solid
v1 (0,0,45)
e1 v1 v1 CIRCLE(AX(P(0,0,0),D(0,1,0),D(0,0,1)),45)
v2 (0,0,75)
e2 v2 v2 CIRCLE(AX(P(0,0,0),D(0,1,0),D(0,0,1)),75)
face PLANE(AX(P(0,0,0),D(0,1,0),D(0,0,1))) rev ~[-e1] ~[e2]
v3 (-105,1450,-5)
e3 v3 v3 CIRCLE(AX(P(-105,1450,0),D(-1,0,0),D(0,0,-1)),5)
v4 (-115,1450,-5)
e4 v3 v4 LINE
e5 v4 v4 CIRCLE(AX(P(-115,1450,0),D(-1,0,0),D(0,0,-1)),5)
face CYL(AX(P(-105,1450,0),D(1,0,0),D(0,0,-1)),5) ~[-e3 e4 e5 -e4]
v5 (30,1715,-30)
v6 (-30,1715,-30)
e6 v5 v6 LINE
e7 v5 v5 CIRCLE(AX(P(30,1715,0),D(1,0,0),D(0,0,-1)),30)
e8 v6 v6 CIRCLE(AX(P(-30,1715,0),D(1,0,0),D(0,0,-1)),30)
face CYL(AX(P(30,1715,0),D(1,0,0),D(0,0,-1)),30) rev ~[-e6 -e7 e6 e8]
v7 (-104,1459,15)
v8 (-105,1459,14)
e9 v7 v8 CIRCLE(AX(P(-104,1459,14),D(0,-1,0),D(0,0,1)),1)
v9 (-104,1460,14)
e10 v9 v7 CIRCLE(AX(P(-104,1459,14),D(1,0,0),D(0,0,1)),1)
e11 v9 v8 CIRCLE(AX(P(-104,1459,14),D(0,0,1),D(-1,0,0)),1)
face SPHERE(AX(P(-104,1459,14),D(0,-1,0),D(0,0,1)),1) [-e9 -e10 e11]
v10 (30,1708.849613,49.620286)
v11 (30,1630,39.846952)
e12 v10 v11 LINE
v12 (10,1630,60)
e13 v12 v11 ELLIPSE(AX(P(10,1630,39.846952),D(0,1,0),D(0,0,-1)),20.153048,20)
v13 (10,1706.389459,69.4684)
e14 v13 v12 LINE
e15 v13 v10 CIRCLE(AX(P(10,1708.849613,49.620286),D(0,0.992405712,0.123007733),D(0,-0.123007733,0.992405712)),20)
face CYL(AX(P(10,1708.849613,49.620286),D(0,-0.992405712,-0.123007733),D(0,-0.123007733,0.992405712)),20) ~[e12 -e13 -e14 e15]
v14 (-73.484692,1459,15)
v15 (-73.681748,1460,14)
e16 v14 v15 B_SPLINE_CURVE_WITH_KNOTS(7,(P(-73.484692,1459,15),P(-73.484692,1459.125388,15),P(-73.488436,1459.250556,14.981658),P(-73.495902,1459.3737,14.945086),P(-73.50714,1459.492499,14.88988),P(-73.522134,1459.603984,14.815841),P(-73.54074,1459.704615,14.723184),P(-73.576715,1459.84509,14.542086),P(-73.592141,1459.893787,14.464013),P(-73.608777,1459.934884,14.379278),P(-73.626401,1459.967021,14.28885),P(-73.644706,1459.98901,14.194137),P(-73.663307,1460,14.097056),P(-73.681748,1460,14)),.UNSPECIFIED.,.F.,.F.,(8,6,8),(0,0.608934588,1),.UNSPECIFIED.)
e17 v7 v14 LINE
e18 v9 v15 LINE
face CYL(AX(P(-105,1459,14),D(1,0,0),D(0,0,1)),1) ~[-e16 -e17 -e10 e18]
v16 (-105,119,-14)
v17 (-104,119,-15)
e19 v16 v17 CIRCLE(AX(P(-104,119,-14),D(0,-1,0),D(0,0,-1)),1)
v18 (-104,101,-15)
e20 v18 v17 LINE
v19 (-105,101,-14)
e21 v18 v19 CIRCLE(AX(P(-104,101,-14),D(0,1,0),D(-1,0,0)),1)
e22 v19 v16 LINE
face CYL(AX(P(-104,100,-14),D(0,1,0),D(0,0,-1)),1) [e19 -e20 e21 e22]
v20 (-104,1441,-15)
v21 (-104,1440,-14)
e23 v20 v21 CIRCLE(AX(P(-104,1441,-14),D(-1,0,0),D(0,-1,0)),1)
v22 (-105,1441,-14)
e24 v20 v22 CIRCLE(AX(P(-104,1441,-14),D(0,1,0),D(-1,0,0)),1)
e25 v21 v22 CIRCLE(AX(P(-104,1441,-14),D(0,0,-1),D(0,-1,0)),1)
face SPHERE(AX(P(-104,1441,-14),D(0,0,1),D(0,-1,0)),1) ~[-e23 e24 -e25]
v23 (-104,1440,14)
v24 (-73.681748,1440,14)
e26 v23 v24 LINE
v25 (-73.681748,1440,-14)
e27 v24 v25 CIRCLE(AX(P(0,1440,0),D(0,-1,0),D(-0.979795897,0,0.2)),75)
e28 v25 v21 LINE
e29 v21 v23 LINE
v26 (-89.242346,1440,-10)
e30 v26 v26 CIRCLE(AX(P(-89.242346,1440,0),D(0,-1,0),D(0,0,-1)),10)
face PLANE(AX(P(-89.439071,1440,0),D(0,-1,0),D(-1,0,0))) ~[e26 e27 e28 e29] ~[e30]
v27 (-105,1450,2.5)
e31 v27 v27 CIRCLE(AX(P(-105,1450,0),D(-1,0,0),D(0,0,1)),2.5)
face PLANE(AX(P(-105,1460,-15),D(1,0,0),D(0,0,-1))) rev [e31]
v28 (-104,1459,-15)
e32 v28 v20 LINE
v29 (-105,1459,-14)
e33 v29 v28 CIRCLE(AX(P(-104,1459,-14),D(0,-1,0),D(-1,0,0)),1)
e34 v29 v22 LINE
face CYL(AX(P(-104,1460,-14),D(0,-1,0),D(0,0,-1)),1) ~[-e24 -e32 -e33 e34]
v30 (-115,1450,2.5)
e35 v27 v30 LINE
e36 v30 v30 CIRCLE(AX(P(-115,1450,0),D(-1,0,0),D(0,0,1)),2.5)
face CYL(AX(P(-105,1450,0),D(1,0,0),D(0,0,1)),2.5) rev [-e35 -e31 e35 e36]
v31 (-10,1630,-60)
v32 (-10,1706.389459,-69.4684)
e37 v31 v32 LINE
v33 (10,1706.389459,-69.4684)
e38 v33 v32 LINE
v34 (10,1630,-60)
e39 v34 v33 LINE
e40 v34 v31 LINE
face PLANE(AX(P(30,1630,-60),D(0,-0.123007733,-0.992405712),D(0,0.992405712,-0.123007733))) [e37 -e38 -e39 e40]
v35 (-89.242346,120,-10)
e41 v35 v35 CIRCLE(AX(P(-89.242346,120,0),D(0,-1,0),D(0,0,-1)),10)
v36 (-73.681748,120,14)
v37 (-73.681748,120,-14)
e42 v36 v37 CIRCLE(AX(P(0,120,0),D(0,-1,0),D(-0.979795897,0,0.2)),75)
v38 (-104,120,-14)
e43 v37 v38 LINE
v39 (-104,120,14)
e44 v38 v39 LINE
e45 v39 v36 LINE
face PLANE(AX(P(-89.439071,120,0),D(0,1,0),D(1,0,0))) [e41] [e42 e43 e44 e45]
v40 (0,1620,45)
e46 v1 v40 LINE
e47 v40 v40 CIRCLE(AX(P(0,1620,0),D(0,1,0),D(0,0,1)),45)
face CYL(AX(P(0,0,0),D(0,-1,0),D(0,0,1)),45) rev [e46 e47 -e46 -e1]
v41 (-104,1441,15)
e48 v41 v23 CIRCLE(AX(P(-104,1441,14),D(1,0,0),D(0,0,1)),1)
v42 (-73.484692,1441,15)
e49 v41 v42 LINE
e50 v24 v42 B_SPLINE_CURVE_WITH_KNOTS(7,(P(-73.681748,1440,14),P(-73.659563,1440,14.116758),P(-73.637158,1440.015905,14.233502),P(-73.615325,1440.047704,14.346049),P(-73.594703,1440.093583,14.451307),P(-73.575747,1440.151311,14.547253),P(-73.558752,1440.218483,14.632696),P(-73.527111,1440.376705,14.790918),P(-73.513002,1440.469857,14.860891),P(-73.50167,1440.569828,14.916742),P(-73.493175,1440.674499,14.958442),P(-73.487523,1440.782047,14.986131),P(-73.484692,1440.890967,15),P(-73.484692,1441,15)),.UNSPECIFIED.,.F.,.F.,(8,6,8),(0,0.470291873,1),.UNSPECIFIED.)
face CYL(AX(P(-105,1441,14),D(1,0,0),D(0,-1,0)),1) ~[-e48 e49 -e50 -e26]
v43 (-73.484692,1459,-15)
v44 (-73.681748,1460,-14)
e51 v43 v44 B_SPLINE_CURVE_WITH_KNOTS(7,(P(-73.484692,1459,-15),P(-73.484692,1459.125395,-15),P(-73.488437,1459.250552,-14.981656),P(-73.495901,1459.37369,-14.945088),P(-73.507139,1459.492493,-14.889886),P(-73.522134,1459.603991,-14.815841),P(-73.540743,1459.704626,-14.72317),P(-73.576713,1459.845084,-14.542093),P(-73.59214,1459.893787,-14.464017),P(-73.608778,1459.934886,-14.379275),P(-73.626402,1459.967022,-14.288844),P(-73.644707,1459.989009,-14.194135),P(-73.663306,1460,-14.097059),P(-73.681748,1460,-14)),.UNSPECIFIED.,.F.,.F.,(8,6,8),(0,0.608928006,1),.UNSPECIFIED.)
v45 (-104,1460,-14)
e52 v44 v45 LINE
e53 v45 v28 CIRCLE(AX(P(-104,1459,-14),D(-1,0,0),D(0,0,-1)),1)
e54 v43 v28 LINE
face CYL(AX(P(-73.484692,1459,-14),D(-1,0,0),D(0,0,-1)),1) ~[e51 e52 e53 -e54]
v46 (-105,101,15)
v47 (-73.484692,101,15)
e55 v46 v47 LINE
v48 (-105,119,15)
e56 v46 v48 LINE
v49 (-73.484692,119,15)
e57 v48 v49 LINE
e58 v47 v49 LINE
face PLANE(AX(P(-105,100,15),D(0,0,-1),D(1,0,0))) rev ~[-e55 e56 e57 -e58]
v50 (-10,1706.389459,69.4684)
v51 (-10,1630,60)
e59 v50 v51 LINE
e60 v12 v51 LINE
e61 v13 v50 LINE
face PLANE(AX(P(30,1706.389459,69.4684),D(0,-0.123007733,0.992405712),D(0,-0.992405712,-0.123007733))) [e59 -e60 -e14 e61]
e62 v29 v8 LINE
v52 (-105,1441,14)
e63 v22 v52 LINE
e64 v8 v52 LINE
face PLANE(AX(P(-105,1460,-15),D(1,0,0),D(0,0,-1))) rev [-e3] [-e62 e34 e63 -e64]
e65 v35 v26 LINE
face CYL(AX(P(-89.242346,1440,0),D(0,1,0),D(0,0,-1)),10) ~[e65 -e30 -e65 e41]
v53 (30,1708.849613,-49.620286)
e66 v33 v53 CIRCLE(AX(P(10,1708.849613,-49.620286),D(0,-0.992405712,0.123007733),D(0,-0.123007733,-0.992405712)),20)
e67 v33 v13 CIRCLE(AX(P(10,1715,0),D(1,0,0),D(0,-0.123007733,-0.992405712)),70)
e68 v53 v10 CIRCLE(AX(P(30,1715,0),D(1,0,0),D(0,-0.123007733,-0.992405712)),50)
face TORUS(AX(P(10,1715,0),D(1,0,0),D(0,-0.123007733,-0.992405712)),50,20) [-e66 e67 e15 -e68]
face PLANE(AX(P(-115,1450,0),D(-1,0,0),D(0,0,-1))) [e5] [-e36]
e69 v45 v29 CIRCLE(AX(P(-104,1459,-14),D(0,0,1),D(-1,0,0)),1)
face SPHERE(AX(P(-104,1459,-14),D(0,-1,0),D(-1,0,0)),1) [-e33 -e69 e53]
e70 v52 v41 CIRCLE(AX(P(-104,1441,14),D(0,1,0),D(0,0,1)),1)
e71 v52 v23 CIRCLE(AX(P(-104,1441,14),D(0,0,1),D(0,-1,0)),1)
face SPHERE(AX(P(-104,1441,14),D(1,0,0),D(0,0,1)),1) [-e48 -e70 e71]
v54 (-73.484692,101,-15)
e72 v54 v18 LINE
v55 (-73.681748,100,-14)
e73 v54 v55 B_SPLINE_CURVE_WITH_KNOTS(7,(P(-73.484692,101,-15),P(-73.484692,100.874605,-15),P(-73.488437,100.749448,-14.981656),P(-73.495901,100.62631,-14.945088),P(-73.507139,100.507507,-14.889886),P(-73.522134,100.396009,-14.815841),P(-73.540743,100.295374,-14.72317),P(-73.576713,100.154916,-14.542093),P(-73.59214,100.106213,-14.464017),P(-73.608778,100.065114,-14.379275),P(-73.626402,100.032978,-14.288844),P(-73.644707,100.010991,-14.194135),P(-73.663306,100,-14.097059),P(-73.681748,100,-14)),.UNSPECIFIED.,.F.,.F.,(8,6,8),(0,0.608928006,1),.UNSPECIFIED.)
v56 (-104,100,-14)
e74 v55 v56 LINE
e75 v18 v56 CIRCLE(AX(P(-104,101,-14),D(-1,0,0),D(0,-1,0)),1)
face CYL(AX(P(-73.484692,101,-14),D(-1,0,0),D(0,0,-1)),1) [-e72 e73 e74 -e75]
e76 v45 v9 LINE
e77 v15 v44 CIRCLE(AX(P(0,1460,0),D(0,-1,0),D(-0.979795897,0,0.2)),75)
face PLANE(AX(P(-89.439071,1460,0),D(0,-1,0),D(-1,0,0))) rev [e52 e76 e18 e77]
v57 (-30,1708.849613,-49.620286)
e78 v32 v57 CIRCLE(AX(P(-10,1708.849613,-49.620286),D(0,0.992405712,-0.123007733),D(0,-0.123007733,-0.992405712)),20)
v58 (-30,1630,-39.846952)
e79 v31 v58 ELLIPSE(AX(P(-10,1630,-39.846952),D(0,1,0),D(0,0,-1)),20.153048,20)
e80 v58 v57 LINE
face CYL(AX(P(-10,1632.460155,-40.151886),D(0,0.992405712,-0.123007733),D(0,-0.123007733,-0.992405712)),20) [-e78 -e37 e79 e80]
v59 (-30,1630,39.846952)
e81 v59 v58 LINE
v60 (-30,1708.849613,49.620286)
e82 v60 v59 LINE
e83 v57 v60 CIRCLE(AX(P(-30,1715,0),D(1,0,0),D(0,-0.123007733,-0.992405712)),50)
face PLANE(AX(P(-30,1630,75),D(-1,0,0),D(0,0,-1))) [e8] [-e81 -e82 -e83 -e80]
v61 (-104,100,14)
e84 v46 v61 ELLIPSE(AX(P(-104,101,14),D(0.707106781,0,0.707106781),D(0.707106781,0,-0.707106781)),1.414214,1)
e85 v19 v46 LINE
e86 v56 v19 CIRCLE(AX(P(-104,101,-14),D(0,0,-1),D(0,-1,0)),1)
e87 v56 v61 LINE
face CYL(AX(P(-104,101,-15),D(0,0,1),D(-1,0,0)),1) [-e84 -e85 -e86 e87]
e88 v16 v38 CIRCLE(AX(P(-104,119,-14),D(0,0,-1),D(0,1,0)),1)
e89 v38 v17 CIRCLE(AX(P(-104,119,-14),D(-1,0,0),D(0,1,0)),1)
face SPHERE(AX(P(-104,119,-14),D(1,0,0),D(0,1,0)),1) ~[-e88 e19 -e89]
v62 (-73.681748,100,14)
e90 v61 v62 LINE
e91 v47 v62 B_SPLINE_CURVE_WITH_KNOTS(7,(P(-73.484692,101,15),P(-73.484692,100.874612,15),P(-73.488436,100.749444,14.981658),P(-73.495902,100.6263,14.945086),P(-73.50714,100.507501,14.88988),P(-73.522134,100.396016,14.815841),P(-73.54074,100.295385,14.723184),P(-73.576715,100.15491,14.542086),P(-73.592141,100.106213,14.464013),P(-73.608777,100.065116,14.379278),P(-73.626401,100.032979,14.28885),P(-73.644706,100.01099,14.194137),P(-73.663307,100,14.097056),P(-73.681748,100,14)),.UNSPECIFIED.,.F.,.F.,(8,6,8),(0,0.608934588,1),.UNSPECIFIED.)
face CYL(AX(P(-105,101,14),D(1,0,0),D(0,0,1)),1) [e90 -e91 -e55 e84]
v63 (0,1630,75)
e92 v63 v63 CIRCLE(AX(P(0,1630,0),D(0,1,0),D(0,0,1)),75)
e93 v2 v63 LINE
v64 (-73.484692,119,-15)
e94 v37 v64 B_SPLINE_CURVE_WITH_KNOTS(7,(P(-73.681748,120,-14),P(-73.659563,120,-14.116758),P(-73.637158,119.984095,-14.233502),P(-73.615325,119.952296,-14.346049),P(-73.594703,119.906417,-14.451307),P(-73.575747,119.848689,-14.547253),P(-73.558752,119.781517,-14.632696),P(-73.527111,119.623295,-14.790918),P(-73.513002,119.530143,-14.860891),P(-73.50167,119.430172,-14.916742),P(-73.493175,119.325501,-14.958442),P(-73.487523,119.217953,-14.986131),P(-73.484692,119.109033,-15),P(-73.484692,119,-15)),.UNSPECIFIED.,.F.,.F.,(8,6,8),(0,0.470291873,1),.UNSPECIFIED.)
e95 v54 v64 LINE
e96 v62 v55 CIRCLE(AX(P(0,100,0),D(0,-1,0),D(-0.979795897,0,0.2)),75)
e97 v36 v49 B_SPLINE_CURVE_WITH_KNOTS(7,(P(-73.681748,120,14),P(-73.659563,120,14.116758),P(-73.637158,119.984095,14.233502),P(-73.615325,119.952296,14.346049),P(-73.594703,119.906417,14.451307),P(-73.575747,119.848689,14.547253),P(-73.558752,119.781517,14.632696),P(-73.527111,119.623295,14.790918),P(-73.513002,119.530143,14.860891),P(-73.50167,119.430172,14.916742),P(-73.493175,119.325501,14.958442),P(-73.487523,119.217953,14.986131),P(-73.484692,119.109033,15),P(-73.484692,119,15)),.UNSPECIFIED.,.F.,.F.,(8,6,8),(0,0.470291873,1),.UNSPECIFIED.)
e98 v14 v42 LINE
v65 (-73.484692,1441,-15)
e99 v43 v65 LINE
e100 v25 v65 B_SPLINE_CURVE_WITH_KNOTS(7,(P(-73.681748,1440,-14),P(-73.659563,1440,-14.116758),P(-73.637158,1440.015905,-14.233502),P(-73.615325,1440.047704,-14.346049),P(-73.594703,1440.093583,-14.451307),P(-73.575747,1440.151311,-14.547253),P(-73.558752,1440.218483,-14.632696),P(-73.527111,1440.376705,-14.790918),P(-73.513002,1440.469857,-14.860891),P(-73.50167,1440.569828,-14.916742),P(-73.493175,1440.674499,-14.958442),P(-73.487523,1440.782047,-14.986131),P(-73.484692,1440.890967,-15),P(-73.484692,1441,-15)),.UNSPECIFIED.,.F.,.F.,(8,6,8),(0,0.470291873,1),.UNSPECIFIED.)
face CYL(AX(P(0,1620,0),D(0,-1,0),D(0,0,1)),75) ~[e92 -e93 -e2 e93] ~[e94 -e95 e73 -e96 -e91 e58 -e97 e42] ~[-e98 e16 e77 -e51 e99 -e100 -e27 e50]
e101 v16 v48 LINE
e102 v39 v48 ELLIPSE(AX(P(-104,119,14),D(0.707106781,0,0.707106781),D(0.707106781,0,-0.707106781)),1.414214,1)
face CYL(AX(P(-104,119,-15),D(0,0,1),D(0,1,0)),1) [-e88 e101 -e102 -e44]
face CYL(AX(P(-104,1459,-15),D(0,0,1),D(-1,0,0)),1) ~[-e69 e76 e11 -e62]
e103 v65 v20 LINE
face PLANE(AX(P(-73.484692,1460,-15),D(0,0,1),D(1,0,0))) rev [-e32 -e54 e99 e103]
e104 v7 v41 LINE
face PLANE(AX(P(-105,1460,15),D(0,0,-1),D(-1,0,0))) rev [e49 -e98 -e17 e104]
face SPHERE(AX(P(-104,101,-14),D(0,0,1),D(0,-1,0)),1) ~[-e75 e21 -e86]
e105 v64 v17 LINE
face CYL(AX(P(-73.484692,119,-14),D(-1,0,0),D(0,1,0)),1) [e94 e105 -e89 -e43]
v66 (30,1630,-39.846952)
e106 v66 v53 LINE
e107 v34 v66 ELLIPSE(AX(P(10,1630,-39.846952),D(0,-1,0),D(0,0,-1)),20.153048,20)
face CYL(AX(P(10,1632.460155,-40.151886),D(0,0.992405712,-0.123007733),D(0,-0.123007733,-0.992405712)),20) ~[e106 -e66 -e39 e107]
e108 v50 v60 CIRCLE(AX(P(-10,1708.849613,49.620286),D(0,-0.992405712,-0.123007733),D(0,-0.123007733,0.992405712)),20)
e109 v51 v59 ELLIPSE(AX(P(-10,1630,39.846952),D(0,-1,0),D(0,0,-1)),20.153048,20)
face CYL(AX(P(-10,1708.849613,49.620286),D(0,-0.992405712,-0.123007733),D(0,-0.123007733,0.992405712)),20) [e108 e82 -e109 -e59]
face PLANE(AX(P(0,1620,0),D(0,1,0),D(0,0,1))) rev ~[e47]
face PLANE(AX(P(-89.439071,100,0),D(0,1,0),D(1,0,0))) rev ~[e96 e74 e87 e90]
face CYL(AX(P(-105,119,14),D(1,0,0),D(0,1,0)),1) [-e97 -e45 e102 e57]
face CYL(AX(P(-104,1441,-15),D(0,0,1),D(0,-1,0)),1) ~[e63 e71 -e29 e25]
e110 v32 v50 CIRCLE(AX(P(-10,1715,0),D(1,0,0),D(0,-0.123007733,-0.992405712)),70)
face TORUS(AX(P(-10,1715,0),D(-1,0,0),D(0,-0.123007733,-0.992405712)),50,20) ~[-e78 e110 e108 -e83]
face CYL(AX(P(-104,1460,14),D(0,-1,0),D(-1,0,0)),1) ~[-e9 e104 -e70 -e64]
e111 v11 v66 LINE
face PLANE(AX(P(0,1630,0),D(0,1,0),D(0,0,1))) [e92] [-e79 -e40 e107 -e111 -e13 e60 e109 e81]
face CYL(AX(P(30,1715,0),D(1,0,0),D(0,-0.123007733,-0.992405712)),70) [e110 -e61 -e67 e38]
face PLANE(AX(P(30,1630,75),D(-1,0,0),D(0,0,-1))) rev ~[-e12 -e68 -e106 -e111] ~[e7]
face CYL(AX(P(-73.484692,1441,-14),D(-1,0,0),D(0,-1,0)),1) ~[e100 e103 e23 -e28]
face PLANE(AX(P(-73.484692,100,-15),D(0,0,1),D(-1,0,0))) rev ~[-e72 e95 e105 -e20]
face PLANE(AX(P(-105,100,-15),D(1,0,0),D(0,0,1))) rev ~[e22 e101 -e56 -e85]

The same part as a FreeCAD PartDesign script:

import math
import FreeCAD as App
import Part
import Sketcher
from FreeCAD import Vector


def edges_at(feature, points):
    """Names of the edges that pass closest to the given points."""
    edges = feature.Shape.Edges
    near = lambda p: min(range(len(edges)), key=lambda i: edges[i].distToShape(Part.Vertex(*p))[0])
    return sorted({f"Edge{near(p) + 1}" for p in points})


def add_polygon(sketch, points):
    """Adds a closed chain of lines whose ends are joined by coincident constraints."""
    first, n = sketch.GeometryCount, len(points)
    for a, b in zip(points, points[1:] + points[:1]):
        sketch.addGeometry(Part.LineSegment(App.Vector(*a, 0), App.Vector(*b, 0)), False)
    for i in range(n):
        sketch.addConstraint(Sketcher.Constraint("Coincident", first + i, 2, first + (i + 1) % n, 1))

doc = App.newDocument("Part")
body = doc.addObject("PartDesign::Body", "Body")

sketch1 = body.newObject("Sketcher::SketchObject", "Sketch")
sketch1.AttachmentSupport = (doc.getObject("XZ_Plane"), [""])
sketch1.MapMode = "FlatFace"
sketch1.addGeometry([
    Part.Circle(Vector(0, 0, 0), Vector(0, 0, 1), 75),
    Part.Circle(Vector(0, 0, 0), Vector(0, 0, 1), 45),
], False)
sketch1.addConstraint([
    Sketcher.Constraint("Coincident", 0, 3, -1, 1),
    Sketcher.Constraint("Coincident", 1, 3, -1, 1),
    Sketcher.Constraint("Diameter", 0, 150.0),
    Sketcher.Constraint("Diameter", 1, 90.0),
])
pad1 = body.newObject("PartDesign::Pad", "Pad")
pad1.Profile = sketch1
pad1.Length = 1620
pad1.Reversed = True

sketch2 = body.newObject("Sketcher::SketchObject", "Sketch001")
sketch2.AttachmentSupport = (doc.getObject("XZ_Plane"), [""])
sketch2.MapMode = "FlatFace"
sketch2.AttachmentOffset = App.Placement(Vector(0, 0, -1620), App.Rotation())
sketch2.addGeometry(Part.Circle(Vector(0, 0, 0), Vector(0, 0, 1), 75), False)
sketch2.addConstraint([
    Sketcher.Constraint("Coincident", 0, 3, -1, 1),
    Sketcher.Constraint("Diameter", 0, 150.0),
])
pad2 = body.newObject("PartDesign::Pad", "Pad001")
pad2.Profile = sketch2
pad2.Length = 10
pad2.Reversed = True

sketch3 = body.newObject("Sketcher::SketchObject", "Sketch002")
sketch3.AttachmentSupport = (doc.getObject("XZ_Plane"), [""])
sketch3.MapMode = "FlatFace"
sketch3.AttachmentOffset = App.Placement(Vector(0, 0, -1630), App.Rotation())
add_polygon(sketch3, [(-30, -75), (-30, 75), (30, 75), (30, -75)])
sketch3.addConstraint([
    Sketcher.Constraint("Vertical", 0),
    Sketcher.Constraint("Horizontal", 1),
    Sketcher.Constraint("Vertical", 2),
    Sketcher.Constraint("Horizontal", 3),
    Sketcher.Constraint("Symmetric", 0, 2, 2, 2, -1, 1),
    Sketcher.Constraint("DistanceX", 1, 1, 1, 2, 60.0),
    Sketcher.Constraint("DistanceY", 0, 1, 0, 2, 150.0),
])
pad3 = body.newObject("PartDesign::Pad", "Pad002")
pad3.Profile = sketch3
pad3.Length = 200
pad3.Reversed = True

sketch4 = body.newObject("Sketcher::SketchObject", "Sketch003")
sketch4.AttachmentSupport = (doc.getObject("YZ_Plane"), [""])
sketch4.MapMode = "FlatFace"
sketch4.AttachmentOffset = App.Placement(Vector(0, 0, 30), App.Rotation())
sketch4.addGeometry([
    Part.Circle(Vector(1715, 0, 0), Vector(0, 0, 1), 30),
    Part.LineSegment(Vector(1630, -75, 0), Vector(1830, -75, 0)),
    Part.LineSegment(Vector(1830, -75, 0), Vector(1830, 75, 0)),
    Part.LineSegment(Vector(1830, 75, 0), Vector(1630, 75, 0)),
    Part.LineSegment(Vector(1630, 75, 0), Vector(1630, 60, 0)),
    Part.LineSegment(Vector(1630, 60, 0), Vector(1706, 69, 0)),
    Part.ArcOfCircle(Part.Circle(Vector(1715, 0, 0), Vector(0, 0, 1), 70), math.radians(-97), math.radians(97)),
    Part.LineSegment(Vector(1706, -69, 0), Vector(1630, -60, 0)),
    Part.LineSegment(Vector(1630, -60, 0), Vector(1630, -75, 0)),
], False)
sketch4.addConstraint([
    Sketcher.Constraint("Coincident", 1, 2, 2, 1),
    Sketcher.Constraint("Coincident", 2, 2, 3, 1),
    Sketcher.Constraint("Coincident", 3, 2, 4, 1),
    Sketcher.Constraint("Coincident", 4, 2, 5, 1),
    Sketcher.Constraint("Tangent", 5, 2, 6, 2),
    Sketcher.Constraint("Tangent", 6, 1, 7, 1),
    Sketcher.Constraint("Coincident", 7, 2, 8, 1),
    Sketcher.Constraint("Coincident", 8, 2, 1, 1),
    Sketcher.Constraint("Horizontal", 1),
    Sketcher.Constraint("Vertical", 2),
    Sketcher.Constraint("Horizontal", 3),
    Sketcher.Constraint("Vertical", 4),
    Sketcher.Constraint("Vertical", 8),
    Sketcher.Constraint("Coincident", 6, 3, 0, 3),
    Sketcher.Constraint("Symmetric", 5, 2, 6, 1, -1),
    Sketcher.Constraint("Symmetric", 3, 2, 8, 2, -1),
    Sketcher.Constraint("Diameter", 0, 60.0),
    Sketcher.Constraint("Radius", 6, 70.0),
    Sketcher.Constraint("DistanceX", 1, 1, 1, 2, 200.0),
    Sketcher.Constraint("DistanceY", 2, 1, 2, 2, 150.0),
    Sketcher.Constraint("DistanceY", 4, 2, 4, 1, 15.0),
    Sketcher.Constraint("DistanceX", -1, 1, 0, 3, 1715.0),
    Sketcher.Constraint("DistanceX", -1, 1, 1, 2, 1830.0),
])
pocket1 = body.newObject("PartDesign::Pocket", "Pocket")
pocket1.Profile = sketch4
pocket1.Type = "ThroughAll"
doc.recompute()

fillet = body.newObject("PartDesign::Fillet", "Fillet")
fillet.Base = (pocket1, edges_at(pocket1, [
    (-30, 1785, 0),
    (-30, 1668.195, 64.734),
    (-30, 1668.195, -64.734),
    (30, 1785, 0),
    (30, 1668.195, -64.734),
    (30, 1668.195, 64.734),
]))
fillet.Radius = 20

sketch5 = body.newObject("Sketcher::SketchObject", "Sketch004")
sketch5.AttachmentSupport = (doc.getObject("XZ_Plane"), [""])
sketch5.MapMode = "FlatFace"
sketch5.AttachmentOffset = App.Placement(Vector(0, 0, -100), App.Rotation())
sketch5.addGeometry([
    Part.LineSegment(Vector(-105, -15, 0), Vector(-73, -15, 0)),
    Part.ArcOfCircle(Part.Circle(Vector(0, 0, 0), Vector(0, 0, 1), 75), math.radians(168), math.radians(192)),
    Part.LineSegment(Vector(-73, 15, 0), Vector(-105, 15, 0)),
    Part.LineSegment(Vector(-105, 15, 0), Vector(-105, -15, 0)),
], False)
sketch5.addConstraint([
    Sketcher.Constraint("Coincident", 0, 2, 1, 2),
    Sketcher.Constraint("Coincident", 1, 1, 2, 1),
    Sketcher.Constraint("Coincident", 2, 2, 3, 1),
    Sketcher.Constraint("Coincident", 3, 2, 0, 1),
    Sketcher.Constraint("Horizontal", 0),
    Sketcher.Constraint("Horizontal", 2),
    Sketcher.Constraint("Vertical", 3),
    Sketcher.Constraint("Coincident", 1, 3, -1, 1),
    Sketcher.Constraint("Vertical", 0, 2, 1, 1),
    Sketcher.Constraint("Radius", 1, 75.0),
    Sketcher.Constraint("DistanceY", 3, 2, 3, 1, 30.0),
    Sketcher.Constraint("DistanceX", 2, 2, -1, 1, 105.0),
])
pad4 = body.newObject("PartDesign::Pad", "Pad003")
pad4.Profile = sketch5
pad4.Length = 20
pad4.Reversed = True

sketch6 = body.newObject("Sketcher::SketchObject", "Sketch005")
sketch6.AttachmentSupport = (doc.getObject("XZ_Plane"), [""])
sketch6.MapMode = "FlatFace"
sketch6.AttachmentOffset = App.Placement(Vector(0, 0, -120), App.Rotation())
sketch6.addGeometry(Part.Circle(Vector(-89, 0, 0), Vector(0, 0, 1), 10), False)
sketch6.addConstraint([
    Sketcher.Constraint("PointOnObject", 0, 3, -1),
    Sketcher.Constraint("Diameter", 0, 20.0),
    Sketcher.Constraint("DistanceX", 0, 3, -1, 1, 89.242346),
])
pad5 = body.newObject("PartDesign::Pad", "Pad004")
pad5.Profile = sketch6
pad5.Length = 660
pad5.Reversed = True
doc.recompute()

datumplane = body.newObject("PartDesign::Plane", "DatumPlane")
datumplane.AttachmentSupport = (doc.getObject("XZ_Plane"), [""])
datumplane.MapMode = "FlatFace"
datumplane.AttachmentOffset = App.Placement(Vector(0, 0, -780), App.Rotation())
mirrored = body.newObject("PartDesign::Mirrored", "Mirrored")
mirrored.Originals = [pad4, pad5]
mirrored.MirrorPlane = (datumplane, [""])
body.Tip = mirrored

sketch7 = body.newObject("Sketcher::SketchObject", "Sketch006")
sketch7.AttachmentSupport = (doc.getObject("YZ_Plane"), [""])
sketch7.MapMode = "FlatFace"
sketch7.AttachmentOffset = App.Placement(Vector(0, 0, -105), App.Rotation())
sketch7.addGeometry([
    Part.Circle(Vector(1450, 0, 0), Vector(0, 0, 1), 5),
    Part.Circle(Vector(1450, 0, 0), Vector(0, 0, 1), 2.5),
], False)
sketch7.addConstraint([
    Sketcher.Constraint("Coincident", 1, 3, 0, 3),
    Sketcher.Constraint("PointOnObject", 0, 3, -1),
    Sketcher.Constraint("Diameter", 0, 10.0),
    Sketcher.Constraint("Diameter", 1, 5.0),
    Sketcher.Constraint("DistanceX", -1, 1, 0, 3, 1450.0),
])
pad6 = body.newObject("PartDesign::Pad", "Pad005")
pad6.Profile = sketch7
pad6.Length = 10
pad6.Reversed = True
doc.recompute()

fillet2 = body.newObject("PartDesign::Fillet", "Fillet001")
fillet2.Base = (pad6, edges_at(pad6, [
    (-89.242, 1440, 15),
    (-105, 1450, 15),
    (-89.242, 1460, 15),
    (-105, 1440, 0),
    (-89.242, 1440, -15),
    (-105, 1450, -15),
    (-105, 1460, 0),
    (-89.242, 1460, -15),
    (-89.242, 100, 15),
    (-89.242, 120, 15),
    (-105, 100, 0),
    (-89.242, 100, -15),
    (-89.242, 120, -15),
    (-105, 120, 0),
    (-105, 110, -15),
]))
fillet2.Radius = 1

doc.recompute()
